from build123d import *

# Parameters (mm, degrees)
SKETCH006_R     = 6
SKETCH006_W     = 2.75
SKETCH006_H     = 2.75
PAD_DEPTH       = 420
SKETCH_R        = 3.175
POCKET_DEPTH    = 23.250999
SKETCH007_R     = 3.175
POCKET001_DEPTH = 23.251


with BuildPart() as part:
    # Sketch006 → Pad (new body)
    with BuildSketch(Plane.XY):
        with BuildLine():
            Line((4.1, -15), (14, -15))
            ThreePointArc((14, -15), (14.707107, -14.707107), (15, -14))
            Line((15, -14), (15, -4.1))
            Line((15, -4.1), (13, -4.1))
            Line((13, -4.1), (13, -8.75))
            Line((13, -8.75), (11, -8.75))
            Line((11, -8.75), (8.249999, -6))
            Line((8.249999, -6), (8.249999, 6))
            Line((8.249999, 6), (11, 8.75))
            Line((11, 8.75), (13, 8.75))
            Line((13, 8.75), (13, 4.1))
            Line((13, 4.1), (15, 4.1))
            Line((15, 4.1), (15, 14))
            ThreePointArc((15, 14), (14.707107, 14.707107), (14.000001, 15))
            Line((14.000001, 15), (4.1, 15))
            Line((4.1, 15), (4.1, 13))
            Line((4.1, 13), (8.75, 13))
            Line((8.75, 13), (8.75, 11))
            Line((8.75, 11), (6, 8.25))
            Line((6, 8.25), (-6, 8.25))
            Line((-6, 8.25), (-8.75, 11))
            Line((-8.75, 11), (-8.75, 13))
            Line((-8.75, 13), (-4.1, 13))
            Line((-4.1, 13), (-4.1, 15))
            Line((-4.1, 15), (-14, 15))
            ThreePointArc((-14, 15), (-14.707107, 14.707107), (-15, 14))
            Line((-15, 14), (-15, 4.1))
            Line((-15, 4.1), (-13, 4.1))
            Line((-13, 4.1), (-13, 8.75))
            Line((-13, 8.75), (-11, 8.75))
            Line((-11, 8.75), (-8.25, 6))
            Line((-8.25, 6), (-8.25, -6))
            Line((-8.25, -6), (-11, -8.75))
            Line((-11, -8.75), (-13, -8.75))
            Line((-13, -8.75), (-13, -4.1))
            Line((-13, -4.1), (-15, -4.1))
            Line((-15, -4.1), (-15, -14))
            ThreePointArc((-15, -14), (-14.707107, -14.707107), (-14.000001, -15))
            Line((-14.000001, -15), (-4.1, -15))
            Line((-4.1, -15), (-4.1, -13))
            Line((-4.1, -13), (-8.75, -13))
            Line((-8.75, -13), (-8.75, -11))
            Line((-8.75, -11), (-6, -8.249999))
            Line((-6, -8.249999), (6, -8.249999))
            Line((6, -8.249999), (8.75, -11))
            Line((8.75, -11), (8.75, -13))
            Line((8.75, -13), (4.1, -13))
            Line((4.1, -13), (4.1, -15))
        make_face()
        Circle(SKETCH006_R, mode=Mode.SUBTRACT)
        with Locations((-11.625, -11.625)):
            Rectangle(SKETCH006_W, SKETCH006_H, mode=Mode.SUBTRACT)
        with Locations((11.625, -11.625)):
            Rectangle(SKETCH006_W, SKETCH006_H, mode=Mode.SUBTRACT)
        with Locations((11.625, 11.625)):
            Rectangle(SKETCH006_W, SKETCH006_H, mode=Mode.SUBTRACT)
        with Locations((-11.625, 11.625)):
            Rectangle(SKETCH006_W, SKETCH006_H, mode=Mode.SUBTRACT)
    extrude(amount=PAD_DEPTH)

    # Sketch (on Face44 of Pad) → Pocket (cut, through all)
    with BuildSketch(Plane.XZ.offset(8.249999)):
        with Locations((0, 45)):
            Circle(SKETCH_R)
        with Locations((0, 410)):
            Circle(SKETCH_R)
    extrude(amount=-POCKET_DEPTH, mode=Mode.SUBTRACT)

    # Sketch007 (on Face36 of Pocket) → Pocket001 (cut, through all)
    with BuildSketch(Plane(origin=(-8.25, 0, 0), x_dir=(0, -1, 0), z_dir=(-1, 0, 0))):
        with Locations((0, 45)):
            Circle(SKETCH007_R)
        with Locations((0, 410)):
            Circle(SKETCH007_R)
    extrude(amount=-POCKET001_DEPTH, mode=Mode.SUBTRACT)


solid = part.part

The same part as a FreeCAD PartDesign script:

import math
import FreeCAD as App
import Part
import Sketcher

V = App.Vector


def add_polygon(sketch, points):
    """Adds a closed chain of lines whose ends are joined by coincident constraints."""
    first, n = sketch.GeometryCount, len(points)
    for a, b in zip(points, points[1:] + points[:1]):
        sketch.addGeometry(Part.LineSegment(App.Vector(*a, 0), App.Vector(*b, 0)), False)
    for i in range(n):
        sketch.addConstraint(Sketcher.Constraint("Coincident", first + i, 2, first + (i + 1) % n, 1))

doc = App.newDocument("Part")
params = doc.addObject("Spreadsheet::Sheet", "Params")
for row, (alias, value) in enumerate([
    ("sketch1_diameter", "12 mm"),
    ("sketch1_radius", "0.999999 mm"),
    ("sketch1_width", "2 mm"),
    ("sketch1_width2", "12 mm"),
    ("sketch1_width3", "9.9 mm"),
    ("pad1_length", "420 mm"),
    ("sketch2_diameter", "6.35 mm"),
    ("sketch3_diameter", "6.35 mm"),
], start=1):
    params.set(f"A{row}", alias)
    params.set(f"B{row}", "=" + value)
    params.setAlias(f"B{row}", alias)

body = doc.addObject("PartDesign::Body", "Body")

# Sketch on XY plane
sketch1 = body.newObject("Sketcher::SketchObject", "Sketch")
sketch1.AttachmentSupport = (doc.getObject("XY_Plane"), [""])
sketch1.MapMode = "FlatFace"
sketch1.addGeometry(Part.LineSegment(V(4.1, -15, 0), V(14, -15, 0)), False)  # 0
sketch1.addGeometry(Part.ArcOfCircle(Part.Circle(V(14.000001, -14.000001, 0), V(0, 0, 1), 0.999999), math.radians(-90.000043), math.radians(0.000043)), False)  # 1
sketch1.addGeometry(Part.LineSegment(V(15, -14, 0), V(15, -4.1, 0)), False)  # 2
sketch1.addGeometry(Part.LineSegment(V(15, -4.1, 0), V(13, -4.1, 0)), False)  # 3
sketch1.addGeometry(Part.LineSegment(V(13, -4.1, 0), V(13, -8.75, 0)), False)  # 4
sketch1.addGeometry(Part.LineSegment(V(13, -8.75, 0), V(11, -8.75, 0)), False)  # 5
sketch1.addGeometry(Part.LineSegment(V(11, -8.75, 0), V(8.249999, -6, 0)), False)  # 6
sketch1.addGeometry(Part.LineSegment(V(8.249999, -6, 0), V(8.249999, 6, 0)), False)  # 7
sketch1.addGeometry(Part.LineSegment(V(8.249999, 6, 0), V(11, 8.75, 0)), False)  # 8
sketch1.addGeometry(Part.LineSegment(V(11, 8.75, 0), V(13, 8.75, 0)), False)  # 9
sketch1.addGeometry(Part.LineSegment(V(13, 8.75, 0), V(13, 4.1, 0)), False)  # 10
sketch1.addGeometry(Part.LineSegment(V(13, 4.1, 0), V(15, 4.1, 0)), False)  # 11
sketch1.addGeometry(Part.LineSegment(V(15, 4.1, 0), V(15, 14, 0)), False)  # 12
sketch1.addGeometry(Part.ArcOfCircle(Part.Circle(V(14.000001, 14.000001, 0), V(0, 0, 1), 0.999999), math.radians(-0.000043), math.radians(89.999986)), False)  # 13
sketch1.addGeometry(Part.LineSegment(V(14.000001, 15, 0), V(4.1, 15, 0)), False)  # 14
sketch1.addGeometry(Part.LineSegment(V(4.1, 15, 0), V(4.1, 13, 0)), False)  # 15
sketch1.addGeometry(Part.LineSegment(V(4.1, 13, 0), V(8.75, 13, 0)), False)  # 16
sketch1.addGeometry(Part.LineSegment(V(8.75, 13, 0), V(8.75, 11, 0)), False)  # 17
sketch1.addGeometry(Part.LineSegment(V(8.75, 11, 0), V(6, 8.25, 0)), False)  # 18
sketch1.addGeometry(Part.LineSegment(V(6, 8.25, 0), V(-6, 8.25, 0)), False)  # 19
sketch1.addGeometry(Part.LineSegment(V(-6, 8.25, 0), V(-8.75, 11, 0)), False)  # 20
sketch1.addGeometry(Part.LineSegment(V(-8.75, 11, 0), V(-8.75, 13, 0)), False)  # 21
sketch1.addGeometry(Part.LineSegment(V(-8.75, 13, 0), V(-4.1, 13, 0)), False)  # 22
sketch1.addGeometry(Part.LineSegment(V(-4.1, 13, 0), V(-4.1, 15, 0)), False)  # 23
sketch1.addGeometry(Part.LineSegment(V(-4.1, 15, 0), V(-14, 15, 0)), False)  # 24
sketch1.addGeometry(Part.ArcOfCircle(Part.Circle(V(-14.000001, 14.000001, 0), V(0, 0, 1), 0.999999), math.radians(89.999957), math.radians(180.000043)), False)  # 25
sketch1.addGeometry(Part.LineSegment(V(-15, 14, 0), V(-15, 4.1, 0)), False)  # 26
sketch1.addGeometry(Part.LineSegment(V(-15, 4.1, 0), V(-13, 4.1, 0)), False)  # 27
sketch1.addGeometry(Part.LineSegment(V(-13, 4.1, 0), V(-13, 8.75, 0)), False)  # 28
sketch1.addGeometry(Part.LineSegment(V(-13, 8.75, 0), V(-11, 8.75, 0)), False)  # 29
sketch1.addGeometry(Part.LineSegment(V(-11, 8.75, 0), V(-8.25, 6, 0)), False)  # 30
sketch1.addGeometry(Part.LineSegment(V(-8.25, 6, 0), V(-8.25, -6, 0)), False)  # 31
sketch1.addGeometry(Part.LineSegment(V(-8.25, -6, 0), V(-11, -8.75, 0)), False)  # 32
sketch1.addGeometry(Part.LineSegment(V(-11, -8.75, 0), V(-13, -8.75, 0)), False)  # 33
sketch1.addGeometry(Part.LineSegment(V(-13, -8.75, 0), V(-13, -4.1, 0)), False)  # 34
sketch1.addGeometry(Part.LineSegment(V(-13, -4.1, 0), V(-15, -4.1, 0)), False)  # 35
sketch1.addGeometry(Part.LineSegment(V(-15, -4.1, 0), V(-15, -14, 0)), False)  # 36
sketch1.addGeometry(Part.ArcOfCircle(Part.Circle(V(-14.000001, -14.000001, 0), V(0, 0, 1), 0.999999), math.radians(179.999957), math.radians(269.999986)), False)  # 37
sketch1.addGeometry(Part.LineSegment(V(-14.000001, -15, 0), V(-4.1, -15, 0)), False)  # 38
sketch1.addGeometry(Part.LineSegment(V(-4.1, -15, 0), V(-4.1, -13, 0)), False)  # 39
sketch1.addGeometry(Part.LineSegment(V(-4.1, -13, 0), V(-8.75, -13, 0)), False)  # 40
sketch1.addGeometry(Part.LineSegment(V(-8.75, -13, 0), V(-8.75, -11, 0)), False)  # 41
sketch1.addGeometry(Part.LineSegment(V(-8.75, -11, 0), V(-6, -8.249999, 0)), False)  # 42
sketch1.addGeometry(Part.LineSegment(V(-6, -8.249999, 0), V(6, -8.249999, 0)), False)  # 43
sketch1.addGeometry(Part.LineSegment(V(6, -8.249999, 0), V(8.75, -11, 0)), False)  # 44
sketch1.addGeometry(Part.LineSegment(V(8.75, -11, 0), V(8.75, -13, 0)), False)  # 45
sketch1.addGeometry(Part.LineSegment(V(8.75, -13, 0), V(4.1, -13, 0)), False)  # 46
sketch1.addGeometry(Part.LineSegment(V(4.1, -13, 0), V(4.1, -15, 0)), False)  # 47
add_polygon(sketch1, [(-10.25, -13), (-13, -13), (-13, -10.25), (-10.25, -10.25)])  # lines 48-51
add_polygon(sketch1, [(13, -13), (10.25, -13), (10.25, -10.25), (13, -10.25)])  # lines 52-55
add_polygon(sketch1, [(-10.25, 10.25), (-13, 10.25), (-13, 13), (-10.25, 13)])  # lines 56-59
sketch1.addGeometry(Part.Circle(V(0, 0, 0), V(0, 0, 1), 6), False)  # 60
add_polygon(sketch1, [(13, 10.25), (10.25, 10.25), (10.25, 13), (13, 13)])  # lines 61-64
sketch1.addConstraint(Sketcher.Constraint("Tangent", 0, 2, 1, 1))
sketch1.addConstraint(Sketcher.Constraint("Tangent", 1, 2, 2, 1))
sketch1.addConstraint(Sketcher.Constraint("Coincident", 2, 2, 3, 1))
sketch1.addConstraint(Sketcher.Constraint("Coincident", 3, 2, 4, 1))
sketch1.addConstraint(Sketcher.Constraint("Coincident", 4, 2, 5, 1))
sketch1.addConstraint(Sketcher.Constraint("Coincident", 5, 2, 6, 1))
sketch1.addConstraint(Sketcher.Constraint("Coincident", 6, 2, 7, 1))
sketch1.addConstraint(Sketcher.Constraint("Coincident", 7, 2, 8, 1))
sketch1.addConstraint(Sketcher.Constraint("Coincident", 8, 2, 9, 1))
sketch1.addConstraint(Sketcher.Constraint("Coincident", 9, 2, 10, 1))
sketch1.addConstraint(Sketcher.Constraint("Coincident", 10, 2, 11, 1))
sketch1.addConstraint(Sketcher.Constraint("Coincident", 11, 2, 12, 1))
sketch1.addConstraint(Sketcher.Constraint("Tangent", 12, 2, 13, 1))
sketch1.addConstraint(Sketcher.Constraint("Tangent", 13, 2, 14, 1))
sketch1.addConstraint(Sketcher.Constraint("Coincident", 14, 2, 15, 1))
sketch1.addConstraint(Sketcher.Constraint("Coincident", 15, 2, 16, 1))
sketch1.addConstraint(Sketcher.Constraint("Coincident", 16, 2, 17, 1))
sketch1.addConstraint(Sketcher.Constraint("Coincident", 17, 2, 18, 1))
sketch1.addConstraint(Sketcher.Constraint("Coincident", 18, 2, 19, 1))
sketch1.addConstraint(Sketcher.Constraint("Coincident", 19, 2, 20, 1))
sketch1.addConstraint(Sketcher.Constraint("Coincident", 20, 2, 21, 1))
sketch1.addConstraint(Sketcher.Constraint("Coincident", 21, 2, 22, 1))
sketch1.addConstraint(Sketcher.Constraint("Coincident", 22, 2, 23, 1))
sketch1.addConstraint(Sketcher.Constraint("Coincident", 23, 2, 24, 1))
sketch1.addConstraint(Sketcher.Constraint("Tangent", 24, 2, 25, 1))
sketch1.addConstraint(Sketcher.Constraint("Tangent", 25, 2, 26, 1))
sketch1.addConstraint(Sketcher.Constraint("Coincident", 26, 2, 27, 1))
sketch1.addConstraint(Sketcher.Constraint("Coincident", 27, 2, 28, 1))
sketch1.addConstraint(Sketcher.Constraint("Coincident", 28, 2, 29, 1))
sketch1.addConstraint(Sketcher.Constraint("Coincident", 29, 2, 30, 1))
sketch1.addConstraint(Sketcher.Constraint("Coincident", 30, 2, 31, 1))
sketch1.addConstraint(Sketcher.Constraint("Coincident", 31, 2, 32, 1))
sketch1.addConstraint(Sketcher.Constraint("Coincident", 32, 2, 33, 1))
sketch1.addConstraint(Sketcher.Constraint("Coincident", 33, 2, 34, 1))
sketch1.addConstraint(Sketcher.Constraint("Coincident", 34, 2, 35, 1))
sketch1.addConstraint(Sketcher.Constraint("Coincident", 35, 2, 36, 1))
sketch1.addConstraint(Sketcher.Constraint("Tangent", 36, 2, 37, 1))
sketch1.addConstraint(Sketcher.Constraint("Tangent", 37, 2, 38, 1))
sketch1.addConstraint(Sketcher.Constraint("Coincident", 38, 2, 39, 1))
sketch1.addConstraint(Sketcher.Constraint("Coincident", 39, 2, 40, 1))
sketch1.addConstraint(Sketcher.Constraint("Coincident", 40, 2, 41, 1))
sketch1.addConstraint(Sketcher.Constraint("Coincident", 41, 2, 42, 1))
sketch1.addConstraint(Sketcher.Constraint("Coincident", 42, 2, 43, 1))
sketch1.addConstraint(Sketcher.Constraint("Coincident", 43, 2, 44, 1))
sketch1.addConstraint(Sketcher.Constraint("Coincident", 44, 2, 45, 1))
sketch1.addConstraint(Sketcher.Constraint("Coincident", 45, 2, 46, 1))
sketch1.addConstraint(Sketcher.Constraint("Coincident", 46, 2, 47, 1))
sketch1.addConstraint(Sketcher.Constraint("Coincident", 47, 2, 0, 1))
sketch1.addConstraint(Sketcher.Constraint("Horizontal", 0))
sketch1.addConstraint(Sketcher.Constraint("Vertical", 2))
sketch1.addConstraint(Sketcher.Constraint("Horizontal", 3))
sketch1.addConstraint(Sketcher.Constraint("Vertical", 4))
sketch1.addConstraint(Sketcher.Constraint("Horizontal", 5))
sketch1.addConstraint(Sketcher.Constraint("Vertical", 7))
sketch1.addConstraint(Sketcher.Constraint("Horizontal", 9))
sketch1.addConstraint(Sketcher.Constraint("Vertical", 10))
sketch1.addConstraint(Sketcher.Constraint("Horizontal", 11))
sketch1.addConstraint(Sketcher.Constraint("Vertical", 12))
sketch1.addConstraint(Sketcher.Constraint("Horizontal", 14))
sketch1.addConstraint(Sketcher.Constraint("Vertical", 15))
sketch1.addConstraint(Sketcher.Constraint("Horizontal", 16))
sketch1.addConstraint(Sketcher.Constraint("Vertical", 17))
sketch1.addConstraint(Sketcher.Constraint("Horizontal", 19))
sketch1.addConstraint(Sketcher.Constraint("Vertical", 21))
sketch1.addConstraint(Sketcher.Constraint("Horizontal", 22))
sketch1.addConstraint(Sketcher.Constraint("Vertical", 23))
sketch1.addConstraint(Sketcher.Constraint("Horizontal", 24))
sketch1.addConstraint(Sketcher.Constraint("Vertical", 26))
sketch1.addConstraint(Sketcher.Constraint("Horizontal", 27))
sketch1.addConstraint(Sketcher.Constraint("Vertical", 28))
sketch1.addConstraint(Sketcher.Constraint("Horizontal", 29))
sketch1.addConstraint(Sketcher.Constraint("Vertical", 31))
sketch1.addConstraint(Sketcher.Constraint("Horizontal", 33))
sketch1.addConstraint(Sketcher.Constraint("Vertical", 34))
sketch1.addConstraint(Sketcher.Constraint("Horizontal", 35))
sketch1.addConstraint(Sketcher.Constraint("Vertical", 36))
sketch1.addConstraint(Sketcher.Constraint("Horizontal", 38))
sketch1.addConstraint(Sketcher.Constraint("Vertical", 39))
sketch1.addConstraint(Sketcher.Constraint("Horizontal", 40))
sketch1.addConstraint(Sketcher.Constraint("Vertical", 41))
sketch1.addConstraint(Sketcher.Constraint("Horizontal", 43))
sketch1.addConstraint(Sketcher.Constraint("Vertical", 45))
sketch1.addConstraint(Sketcher.Constraint("Horizontal", 46))
sketch1.addConstraint(Sketcher.Constraint("Vertical", 47))
sketch1.addConstraint(Sketcher.Constraint("Horizontal", 48))
sketch1.addConstraint(Sketcher.Constraint("Vertical", 49))
sketch1.addConstraint(Sketcher.Constraint("Horizontal", 50))
sketch1.addConstraint(Sketcher.Constraint("Vertical", 51))
sketch1.addConstraint(Sketcher.Constraint("Horizontal", 52))
sketch1.addConstraint(Sketcher.Constraint("Vertical", 53))
sketch1.addConstraint(Sketcher.Constraint("Horizontal", 54))
sketch1.addConstraint(Sketcher.Constraint("Vertical", 55))
sketch1.addConstraint(Sketcher.Constraint("Horizontal", 56))
sketch1.addConstraint(Sketcher.Constraint("Vertical", 57))
sketch1.addConstraint(Sketcher.Constraint("Horizontal", 58))
sketch1.addConstraint(Sketcher.Constraint("Vertical", 59))
sketch1.addConstraint(Sketcher.Constraint("Horizontal", 61))
sketch1.addConstraint(Sketcher.Constraint("Vertical", 62))
sketch1.addConstraint(Sketcher.Constraint("Horizontal", 63))
sketch1.addConstraint(Sketcher.Constraint("Vertical", 64))
sketch1.addConstraint(Sketcher.Constraint("Coincident", 60, 3, -1, 1))
sketch1.addConstraint(Sketcher.Constraint("Equal", 1, 13))
sketch1.addConstraint(Sketcher.Constraint("Equal", 13, 25))
sketch1.addConstraint(Sketcher.Constraint("Equal", 25, 37))
sketch1.addConstraint(Sketcher.Constraint("Symmetric", 1, 3, 25, 3, -1, 1))
sketch1.addConstraint(Sketcher.Constraint("Symmetric", 13, 3, 37, 3, -1, 1))
sketch1.addConstraint(Sketcher.Constraint("Symmetric", 3, 2, 27, 2, -1, 1))
sketch1.addConstraint(Sketcher.Constraint("Symmetric", 5, 2, 29, 2, -1, 1))
sketch1.addConstraint(Sketcher.Constraint("Symmetric", 6, 2, 30, 2, -1, 1))
sketch1.addConstraint(Sketcher.Constraint("Symmetric", 8, 2, 32, 2, -1, 1))
sketch1.addConstraint(Sketcher.Constraint("Symmetric", 10, 2, 34, 2, -1, 1))
sketch1.addConstraint(Sketcher.Constraint("Symmetric", 15, 2, 39, 2, -1, 1))
sketch1.addConstraint(Sketcher.Constraint("Symmetric", 17, 2, 41, 2, -1, 1))
sketch1.addConstraint(Sketcher.Constraint("Symmetric", 18, 2, 42, 2, -1, 1))
sketch1.addConstraint(Sketcher.Constraint("Symmetric", 20, 2, 44, 2, -1, 1))
sketch1.addConstraint(Sketcher.Constraint("Symmetric", 22, 2, 46, 2, -1, 1))
sketch1.addConstraint(Sketcher.Constraint("Symmetric", 54, 2, 56, 2, -1, 1))
sketch1.addConstraint(Sketcher.Constraint("Symmetric", 52, 2, 58, 2, -1, 1))
sketch1.addConstraint(Sketcher.Constraint("Symmetric", 50, 2, 61, 2, -1, 1))
sketch1.addConstraint(Sketcher.Constraint("Symmetric", 48, 2, 63, 2, -1, 1))
sketch1.addConstraint(Sketcher.Constraint("Symmetric", 13, 3, 25, 3, -2))
sketch1.addConstraint(Sketcher.Constraint("Symmetric", 17, 2, 20, 2, -2))
sketch1.addConstraint(Sketcher.Constraint("Symmetric", 15, 2, 22, 2, -2))
sketch1.addConstraint(Sketcher.Constraint("Symmetric", 10, 2, 27, 2, -2))
sketch1.addConstraint(Sketcher.Constraint("Symmetric", 8, 2, 29, 2, -2))
sketch1.addConstraint(Sketcher.Constraint("Symmetric", 51, 2, 52, 2, -2))
sketch1.addConstraint(Sketcher.Constraint("Symmetric", 49, 2, 54, 2, -2))
sketch1.addConstraint(Sketcher.Constraint("Perpendicular", 6, 8))
sketch1.addConstraint(Sketcher.Constraint("Parallel", 8, 18))
sketch1.addConstraint(Sketcher.Constraint("Perpendicular", 18, 20))
sketch1.addConstraint(Sketcher.Constraint("Perpendicular", 30, 32))
sketch1.addConstraint(Sketcher.Constraint("Perpendicular", 42, 44))
sketch1.addConstraint(Sketcher.Constraint("Horizontal", 7, 2, 30, 2))
sketch1.addConstraint(Sketcher.Constraint("Horizontal", 46, 2, 48, 2))
sketch1.addConstraint(Sketcher.Constraint("Vertical", 34, 2, 48, 2))
sketch1.addConstraint(Sketcher.Constraint("Equal", 3, 5))
sketch1.addConstraint(Sketcher.Constraint("Equal", 38, 2))
sketch1.addConstraint(Sketcher.Constraint("Equal", 46, 4))
sketch1.addConstraint(Sketcher.Constraint("Equal", 43, 7))
sketch1.addConstraint(Sketcher.Constraint("Equal", 35, 15))
sketch1.addConstraint(Sketcher.Constraint("Equal", 15, 17))
sketch1.addConstraint(Sketcher.Constraint("Equal", 63, 49))
sketch1.addConstraint(Sketcher.Constraint("Equal", 8, 18))
sketch1.addConstraint(Sketcher.Constraint("Diameter", 60, 12.0))
sketch1.addConstraint(Sketcher.Constraint("Radius", 1, 0.999999))
sketch1.addConstraint(Sketcher.Constraint("DistanceX", 3, 2, 3, 1, 2.0))
sketch1.addConstraint(Sketcher.Constraint("DistanceX", 19, 2, 19, 1, 12.0))
sketch1.addConstraint(Sketcher.Constraint("DistanceX", 0, 1, 0, 2, 9.9))
sketch1.addConstraint(Sketcher.Constraint("DistanceX", -1, 1, 1, 3, 14.000001))
sketch1.addConstraint(Sketcher.Constraint("DistanceX", 16, 1, 16, 2, 4.65))
sketch1.addConstraint(Sketcher.Constraint("DistanceX", 48, 2, 48, 1, 2.75))
sketch1.setExpression("Constraints[159]", "Params.sketch1_diameter")
sketch1.setExpression("Constraints[160]", "Params.sketch1_radius")
sketch1.setExpression("Constraints[161]", "Params.sketch1_width")
sketch1.setExpression("Constraints[162]", "Params.sketch1_width2")
sketch1.setExpression("Constraints[163]", "Params.sketch1_width3")
pad1 = body.newObject("PartDesign::Pad", "Pad")
pad1.Profile = sketch1
pad1.setExpression("Length", "Params.pad1_length")

# Sketch on XZ plane
sketch2 = body.newObject("Sketcher::SketchObject", "Sketch001")
sketch2.AttachmentSupport = (doc.getObject("XZ_Plane"), [""])
sketch2.MapMode = "FlatFace"
sketch2.AttachmentOffset = App.Placement(V(0, 0, 8.249999), App.Rotation())
sketch2.addGeometry(Part.Circle(V(0, 45, 0), V(0, 0, 1), 3.175), False)
sketch2.addGeometry(Part.Circle(V(0, 410, 0), V(0, 0, 1), 3.175), False)
sketch2.addConstraint(Sketcher.Constraint("Equal", 0, 1))
sketch2.addConstraint(Sketcher.Constraint("PointOnObject", 0, 3, -2))
sketch2.addConstraint(Sketcher.Constraint("PointOnObject", 1, 3, -2))
sketch2.addConstraint(Sketcher.Constraint("Diameter", 0, 6.35))
sketch2.addConstraint(Sketcher.Constraint("DistanceY", -1, 1, 0, 3, 45.0))
sketch2.addConstraint(Sketcher.Constraint("DistanceY", -1, 1, 1, 3, 410.0))
sketch2.setExpression("Constraints[3]", "Params.sketch2_diameter")
pocket1 = body.newObject("PartDesign::Pocket", "Pocket")
pocket1.Profile = sketch2
pocket1.Type = "ThroughAll"

# Sketch on YZ plane
sketch3 = body.newObject("Sketcher::SketchObject", "Sketch002")
sketch3.AttachmentSupport = (doc.getObject("YZ_Plane"), [""])
sketch3.MapMode = "FlatFace"
sketch3.AttachmentOffset = App.Placement(V(0, 0, -8.25), App.Rotation())
sketch3.addGeometry(Part.Circle(V(0, 45, 0), V(0, 0, 1), 3.175), False)
sketch3.addGeometry(Part.Circle(V(0, 410, 0), V(0, 0, 1), 3.175), False)
sketch3.addConstraint(Sketcher.Constraint("Equal", 0, 1))
sketch3.addConstraint(Sketcher.Constraint("PointOnObject", 0, 3, -2))
sketch3.addConstraint(Sketcher.Constraint("PointOnObject", 1, 3, -2))
sketch3.addConstraint(Sketcher.Constraint("Diameter", 0, 6.35))
sketch3.addConstraint(Sketcher.Constraint("DistanceY", -1, 1, 0, 3, 45.0))
sketch3.addConstraint(Sketcher.Constraint("DistanceY", -1, 1, 1, 3, 410.0))
sketch3.setExpression("Constraints[3]", "Params.sketch3_diameter")
pocket2 = body.newObject("PartDesign::Pocket", "Pocket001")
pocket2.Profile = sketch3
pocket2.Type = "ThroughAll"
pocket2.Reversed = True

doc.recompute()
